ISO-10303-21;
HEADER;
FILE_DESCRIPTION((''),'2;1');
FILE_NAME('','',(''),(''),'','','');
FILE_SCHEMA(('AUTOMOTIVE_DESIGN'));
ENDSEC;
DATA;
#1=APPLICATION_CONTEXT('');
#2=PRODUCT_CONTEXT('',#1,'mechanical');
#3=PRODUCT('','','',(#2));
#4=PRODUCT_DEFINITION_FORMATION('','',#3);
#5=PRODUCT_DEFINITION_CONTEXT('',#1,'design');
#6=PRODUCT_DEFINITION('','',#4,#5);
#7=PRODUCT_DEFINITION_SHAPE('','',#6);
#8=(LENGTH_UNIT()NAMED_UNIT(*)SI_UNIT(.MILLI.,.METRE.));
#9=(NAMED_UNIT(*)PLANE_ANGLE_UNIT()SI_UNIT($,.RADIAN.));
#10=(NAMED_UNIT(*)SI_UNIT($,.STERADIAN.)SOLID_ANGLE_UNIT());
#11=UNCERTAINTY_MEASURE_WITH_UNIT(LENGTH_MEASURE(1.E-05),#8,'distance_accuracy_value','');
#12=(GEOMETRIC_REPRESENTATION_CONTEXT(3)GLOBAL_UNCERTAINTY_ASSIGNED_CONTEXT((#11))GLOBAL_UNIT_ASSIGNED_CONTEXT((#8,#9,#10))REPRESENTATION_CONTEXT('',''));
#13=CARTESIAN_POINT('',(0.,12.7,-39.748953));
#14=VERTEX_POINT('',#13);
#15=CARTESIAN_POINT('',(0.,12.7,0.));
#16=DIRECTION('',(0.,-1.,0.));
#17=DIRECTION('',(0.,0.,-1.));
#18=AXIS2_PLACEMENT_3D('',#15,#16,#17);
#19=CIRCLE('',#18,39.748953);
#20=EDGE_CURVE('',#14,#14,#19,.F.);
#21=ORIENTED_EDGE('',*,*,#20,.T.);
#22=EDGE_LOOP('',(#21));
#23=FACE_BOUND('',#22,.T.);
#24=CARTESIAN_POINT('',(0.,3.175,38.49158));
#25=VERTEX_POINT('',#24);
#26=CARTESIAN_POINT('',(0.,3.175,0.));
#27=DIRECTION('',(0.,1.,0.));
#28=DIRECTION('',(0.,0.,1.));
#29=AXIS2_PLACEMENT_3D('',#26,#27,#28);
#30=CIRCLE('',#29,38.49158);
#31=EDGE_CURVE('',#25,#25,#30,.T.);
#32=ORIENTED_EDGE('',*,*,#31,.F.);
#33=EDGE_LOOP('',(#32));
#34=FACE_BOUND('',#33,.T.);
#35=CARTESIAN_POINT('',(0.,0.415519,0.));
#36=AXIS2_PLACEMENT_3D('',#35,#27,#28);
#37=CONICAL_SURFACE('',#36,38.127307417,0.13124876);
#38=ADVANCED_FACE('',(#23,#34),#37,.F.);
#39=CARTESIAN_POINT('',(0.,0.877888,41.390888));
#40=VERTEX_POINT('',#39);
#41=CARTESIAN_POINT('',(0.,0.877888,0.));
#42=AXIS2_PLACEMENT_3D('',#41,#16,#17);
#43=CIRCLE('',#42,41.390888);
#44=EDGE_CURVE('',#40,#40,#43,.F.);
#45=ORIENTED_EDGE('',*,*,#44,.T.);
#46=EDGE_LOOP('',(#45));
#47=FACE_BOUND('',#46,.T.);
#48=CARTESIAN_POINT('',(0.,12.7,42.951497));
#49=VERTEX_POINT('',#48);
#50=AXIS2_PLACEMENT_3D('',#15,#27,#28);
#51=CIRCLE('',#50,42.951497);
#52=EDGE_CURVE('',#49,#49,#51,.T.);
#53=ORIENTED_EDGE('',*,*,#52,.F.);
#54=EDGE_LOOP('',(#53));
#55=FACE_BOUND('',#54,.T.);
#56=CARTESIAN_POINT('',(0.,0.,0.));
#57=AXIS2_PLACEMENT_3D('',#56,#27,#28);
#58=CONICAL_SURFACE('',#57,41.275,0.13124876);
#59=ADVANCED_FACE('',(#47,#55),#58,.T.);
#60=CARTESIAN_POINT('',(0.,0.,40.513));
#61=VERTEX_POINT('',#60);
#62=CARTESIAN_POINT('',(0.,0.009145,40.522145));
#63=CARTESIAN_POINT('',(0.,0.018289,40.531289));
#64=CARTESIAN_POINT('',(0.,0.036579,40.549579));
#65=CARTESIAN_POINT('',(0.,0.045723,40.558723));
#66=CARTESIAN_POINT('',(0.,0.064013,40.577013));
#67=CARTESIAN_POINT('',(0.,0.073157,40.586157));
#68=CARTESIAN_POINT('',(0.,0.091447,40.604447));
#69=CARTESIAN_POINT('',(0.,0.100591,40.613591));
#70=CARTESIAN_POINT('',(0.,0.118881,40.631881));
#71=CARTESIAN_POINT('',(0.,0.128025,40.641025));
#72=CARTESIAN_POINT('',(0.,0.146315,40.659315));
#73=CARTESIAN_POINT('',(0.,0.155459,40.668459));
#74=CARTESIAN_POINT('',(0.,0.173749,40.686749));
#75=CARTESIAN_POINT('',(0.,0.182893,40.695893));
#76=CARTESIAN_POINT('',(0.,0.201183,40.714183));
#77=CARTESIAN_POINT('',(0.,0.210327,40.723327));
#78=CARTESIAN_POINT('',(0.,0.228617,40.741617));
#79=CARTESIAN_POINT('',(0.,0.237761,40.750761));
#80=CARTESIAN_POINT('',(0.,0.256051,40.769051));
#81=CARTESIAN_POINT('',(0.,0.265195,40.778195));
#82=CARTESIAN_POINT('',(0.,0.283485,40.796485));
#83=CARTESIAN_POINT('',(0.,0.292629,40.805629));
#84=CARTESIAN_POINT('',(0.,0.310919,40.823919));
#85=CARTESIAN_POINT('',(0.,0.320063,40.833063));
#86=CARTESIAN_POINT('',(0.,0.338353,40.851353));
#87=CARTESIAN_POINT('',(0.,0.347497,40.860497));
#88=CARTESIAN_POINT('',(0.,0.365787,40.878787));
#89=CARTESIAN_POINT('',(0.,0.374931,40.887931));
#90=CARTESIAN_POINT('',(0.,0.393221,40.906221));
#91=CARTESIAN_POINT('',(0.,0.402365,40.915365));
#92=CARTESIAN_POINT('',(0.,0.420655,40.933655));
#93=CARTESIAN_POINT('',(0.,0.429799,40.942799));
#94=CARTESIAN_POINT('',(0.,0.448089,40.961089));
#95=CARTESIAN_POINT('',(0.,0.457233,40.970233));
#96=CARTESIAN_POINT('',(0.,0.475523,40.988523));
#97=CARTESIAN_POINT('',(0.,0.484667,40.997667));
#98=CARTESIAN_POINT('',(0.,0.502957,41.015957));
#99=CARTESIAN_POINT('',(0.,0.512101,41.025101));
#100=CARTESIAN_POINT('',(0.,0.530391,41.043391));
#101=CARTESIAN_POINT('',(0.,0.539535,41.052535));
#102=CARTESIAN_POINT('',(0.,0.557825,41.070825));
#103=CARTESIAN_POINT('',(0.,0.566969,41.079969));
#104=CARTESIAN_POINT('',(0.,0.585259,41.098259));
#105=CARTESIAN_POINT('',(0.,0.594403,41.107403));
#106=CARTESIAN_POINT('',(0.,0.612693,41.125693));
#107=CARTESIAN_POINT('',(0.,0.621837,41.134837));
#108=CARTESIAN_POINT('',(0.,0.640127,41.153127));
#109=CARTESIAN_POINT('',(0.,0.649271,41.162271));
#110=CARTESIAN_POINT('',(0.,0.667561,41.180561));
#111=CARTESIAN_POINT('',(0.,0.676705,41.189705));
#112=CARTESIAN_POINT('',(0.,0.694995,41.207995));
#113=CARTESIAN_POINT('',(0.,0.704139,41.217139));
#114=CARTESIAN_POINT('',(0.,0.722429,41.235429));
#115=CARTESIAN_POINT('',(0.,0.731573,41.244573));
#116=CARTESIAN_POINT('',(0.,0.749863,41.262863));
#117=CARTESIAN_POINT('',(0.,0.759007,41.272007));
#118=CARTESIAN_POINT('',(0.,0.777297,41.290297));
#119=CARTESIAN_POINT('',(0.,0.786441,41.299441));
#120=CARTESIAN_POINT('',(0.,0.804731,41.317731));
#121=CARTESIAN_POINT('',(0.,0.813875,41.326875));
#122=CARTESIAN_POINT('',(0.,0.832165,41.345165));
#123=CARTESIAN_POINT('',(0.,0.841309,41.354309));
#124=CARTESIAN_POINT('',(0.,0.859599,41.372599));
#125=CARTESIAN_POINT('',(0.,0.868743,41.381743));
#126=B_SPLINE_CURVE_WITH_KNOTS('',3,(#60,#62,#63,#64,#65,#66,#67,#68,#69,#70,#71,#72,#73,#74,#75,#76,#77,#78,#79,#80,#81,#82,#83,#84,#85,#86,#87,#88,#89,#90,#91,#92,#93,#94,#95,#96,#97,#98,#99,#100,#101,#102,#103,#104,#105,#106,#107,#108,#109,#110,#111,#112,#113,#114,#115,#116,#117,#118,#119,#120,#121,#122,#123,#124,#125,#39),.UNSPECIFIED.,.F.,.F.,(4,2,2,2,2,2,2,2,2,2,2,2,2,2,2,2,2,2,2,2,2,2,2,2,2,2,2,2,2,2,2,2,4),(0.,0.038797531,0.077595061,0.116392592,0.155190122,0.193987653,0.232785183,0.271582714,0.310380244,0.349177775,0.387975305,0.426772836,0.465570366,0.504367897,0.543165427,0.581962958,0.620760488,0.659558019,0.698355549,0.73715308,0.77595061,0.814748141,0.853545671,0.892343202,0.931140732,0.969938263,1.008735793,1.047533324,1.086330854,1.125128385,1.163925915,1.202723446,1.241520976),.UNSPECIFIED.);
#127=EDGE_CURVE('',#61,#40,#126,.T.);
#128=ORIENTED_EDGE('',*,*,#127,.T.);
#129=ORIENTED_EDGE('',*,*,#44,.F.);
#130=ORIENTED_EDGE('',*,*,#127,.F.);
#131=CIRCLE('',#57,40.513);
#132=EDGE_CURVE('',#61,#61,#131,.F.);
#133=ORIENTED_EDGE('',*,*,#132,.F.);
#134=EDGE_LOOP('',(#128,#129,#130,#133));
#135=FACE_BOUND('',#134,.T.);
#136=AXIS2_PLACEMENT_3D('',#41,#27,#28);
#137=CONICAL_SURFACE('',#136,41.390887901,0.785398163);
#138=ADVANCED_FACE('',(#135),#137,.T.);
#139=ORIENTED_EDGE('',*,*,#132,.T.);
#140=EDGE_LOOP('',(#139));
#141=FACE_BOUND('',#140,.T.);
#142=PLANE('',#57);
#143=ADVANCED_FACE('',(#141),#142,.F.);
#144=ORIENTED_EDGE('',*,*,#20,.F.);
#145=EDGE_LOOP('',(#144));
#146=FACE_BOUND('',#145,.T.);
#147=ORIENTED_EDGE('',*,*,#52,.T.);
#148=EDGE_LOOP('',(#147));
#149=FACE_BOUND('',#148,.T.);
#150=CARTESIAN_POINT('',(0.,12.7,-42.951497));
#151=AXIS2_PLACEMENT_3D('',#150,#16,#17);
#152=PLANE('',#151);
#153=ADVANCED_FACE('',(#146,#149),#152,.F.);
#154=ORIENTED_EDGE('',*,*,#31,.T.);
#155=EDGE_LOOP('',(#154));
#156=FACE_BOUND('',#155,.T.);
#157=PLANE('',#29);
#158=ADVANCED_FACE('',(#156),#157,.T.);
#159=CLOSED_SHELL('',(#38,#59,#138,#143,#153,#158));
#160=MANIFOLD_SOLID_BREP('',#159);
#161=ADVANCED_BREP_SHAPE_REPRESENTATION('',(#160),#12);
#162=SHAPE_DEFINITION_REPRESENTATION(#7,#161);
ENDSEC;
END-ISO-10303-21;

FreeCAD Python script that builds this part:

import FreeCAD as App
import Part
import Sketcher
from FreeCAD import Vector
Q = App.Units.Quantity


def edges_at(feature, points):
    """Names of the edges that pass closest to the given points."""
    edges = feature.Shape.Edges
    near = lambda p: min(range(len(edges)), key=lambda i: edges[i].distToShape(Part.Vertex(*p))[0])
    return sorted({f"Edge{near(p) + 1}" for p in points})


def faces_at(feature, points):
    """Names of the faces that lie closest to the given points."""
    faces = feature.Shape.Faces
    near = lambda p: min(range(len(faces)), key=lambda i: faces[i].distToShape(Part.Vertex(*p))[0])
    return sorted({f"Face{near(p) + 1}" for p in points})

doc = App.newDocument("Part")
params = doc.addObject("Spreadsheet::Sheet", "Params")
for row, (alias, value) in enumerate([
    ("sketch1_width", "0.5 in"),
    ("sketch1_height", "1.625 in"),
    ("revolution_angle", "360 deg"),
    ("thickness_wall", "0.125 in"),
    ("chamfer_size", "0.03 in"),
    ("chamfer_size2", "0.885504 mm"),
], start=1):
    params.set(f"A{row}", alias)
    params.set(f"B{row}", "=" + value)
    params.setAlias(f"B{row}", alias)

body = doc.addObject("PartDesign::Body", "Body")

sketch1 = body.newObject("Sketcher::SketchObject", "Sketch")
sketch1.AttachmentSupport = (doc.getObject("YZ_Plane"), [""])
sketch1.MapMode = "FlatFace"
sketch1.addGeometry(Part.LineSegment(Vector(0, 0, 0), Vector(0, -41.275, 0)), False)
sketch1.addGeometry(Part.LineSegment(Vector(0, -41.275, 0), Vector(12.7, -42.951497, 0)), False)
sketch1.addGeometry(Part.LineSegment(Vector(12.7, -42.951497, 0), Vector(12.7, 0, 0)), False)
sketch1.addGeometry(Part.LineSegment(Vector(12.7, 0, 0), Vector(0, 0, 0)), False)
sketch1.addConstraint(Sketcher.Constraint("Coincident", 0, 2, 1, 1))
sketch1.addConstraint(Sketcher.Constraint("Coincident", 1, 2, 2, 1))
sketch1.addConstraint(Sketcher.Constraint("Coincident", 2, 2, 3, 1))
sketch1.addConstraint(Sketcher.Constraint("Coincident", 3, 2, 0, 1))
sketch1.addConstraint(Sketcher.Constraint("Vertical", 0))
sketch1.addConstraint(Sketcher.Constraint("Vertical", 2))
sketch1.addConstraint(Sketcher.Constraint("Horizontal", 3))
sketch1.addConstraint(Sketcher.Constraint("Coincident", 3, 2, -1, 1))
sketch1.addConstraint(Sketcher.Constraint("DistanceX", 3, 2, 3, 1, Q("0.5 in")))
sketch1.addConstraint(Sketcher.Constraint("DistanceY", 0, 2, 0, 1, Q("1.625 in")))
sketch1.addConstraint(Sketcher.Constraint("Angle", 1, Q("-7.52 deg")))
sketch1.setExpression("Constraints[8]", "Params.sketch1_width")
sketch1.setExpression("Constraints[9]", "Params.sketch1_height")
revolution = body.newObject("PartDesign::Revolution", "Revolution")
revolution.Profile = sketch1
revolution.ReferenceAxis = (sketch1, ["H_Axis"])
revolution.setExpression("Angle", "Params.revolution_angle")
doc.recompute()

thickness = body.newObject("PartDesign::Thickness", "Thickness")
thickness.Base = (revolution, faces_at(revolution, [(0, 12.7, 0)]))
thickness.setExpression("Value", "Params.thickness_wall")
thickness.Reversed = True
thickness.Join = "Intersection"
doc.recompute()

chamfer = body.newObject("PartDesign::Chamfer", "Chamfer")
chamfer.Base = (thickness, edges_at(thickness, [(0, 0, -41.275)]))
chamfer.ChamferType = "Two distances"
chamfer.setExpression("Size", "Params.chamfer_size")
chamfer.setExpression("Size2", "Params.chamfer_size2")

doc.recompute()
